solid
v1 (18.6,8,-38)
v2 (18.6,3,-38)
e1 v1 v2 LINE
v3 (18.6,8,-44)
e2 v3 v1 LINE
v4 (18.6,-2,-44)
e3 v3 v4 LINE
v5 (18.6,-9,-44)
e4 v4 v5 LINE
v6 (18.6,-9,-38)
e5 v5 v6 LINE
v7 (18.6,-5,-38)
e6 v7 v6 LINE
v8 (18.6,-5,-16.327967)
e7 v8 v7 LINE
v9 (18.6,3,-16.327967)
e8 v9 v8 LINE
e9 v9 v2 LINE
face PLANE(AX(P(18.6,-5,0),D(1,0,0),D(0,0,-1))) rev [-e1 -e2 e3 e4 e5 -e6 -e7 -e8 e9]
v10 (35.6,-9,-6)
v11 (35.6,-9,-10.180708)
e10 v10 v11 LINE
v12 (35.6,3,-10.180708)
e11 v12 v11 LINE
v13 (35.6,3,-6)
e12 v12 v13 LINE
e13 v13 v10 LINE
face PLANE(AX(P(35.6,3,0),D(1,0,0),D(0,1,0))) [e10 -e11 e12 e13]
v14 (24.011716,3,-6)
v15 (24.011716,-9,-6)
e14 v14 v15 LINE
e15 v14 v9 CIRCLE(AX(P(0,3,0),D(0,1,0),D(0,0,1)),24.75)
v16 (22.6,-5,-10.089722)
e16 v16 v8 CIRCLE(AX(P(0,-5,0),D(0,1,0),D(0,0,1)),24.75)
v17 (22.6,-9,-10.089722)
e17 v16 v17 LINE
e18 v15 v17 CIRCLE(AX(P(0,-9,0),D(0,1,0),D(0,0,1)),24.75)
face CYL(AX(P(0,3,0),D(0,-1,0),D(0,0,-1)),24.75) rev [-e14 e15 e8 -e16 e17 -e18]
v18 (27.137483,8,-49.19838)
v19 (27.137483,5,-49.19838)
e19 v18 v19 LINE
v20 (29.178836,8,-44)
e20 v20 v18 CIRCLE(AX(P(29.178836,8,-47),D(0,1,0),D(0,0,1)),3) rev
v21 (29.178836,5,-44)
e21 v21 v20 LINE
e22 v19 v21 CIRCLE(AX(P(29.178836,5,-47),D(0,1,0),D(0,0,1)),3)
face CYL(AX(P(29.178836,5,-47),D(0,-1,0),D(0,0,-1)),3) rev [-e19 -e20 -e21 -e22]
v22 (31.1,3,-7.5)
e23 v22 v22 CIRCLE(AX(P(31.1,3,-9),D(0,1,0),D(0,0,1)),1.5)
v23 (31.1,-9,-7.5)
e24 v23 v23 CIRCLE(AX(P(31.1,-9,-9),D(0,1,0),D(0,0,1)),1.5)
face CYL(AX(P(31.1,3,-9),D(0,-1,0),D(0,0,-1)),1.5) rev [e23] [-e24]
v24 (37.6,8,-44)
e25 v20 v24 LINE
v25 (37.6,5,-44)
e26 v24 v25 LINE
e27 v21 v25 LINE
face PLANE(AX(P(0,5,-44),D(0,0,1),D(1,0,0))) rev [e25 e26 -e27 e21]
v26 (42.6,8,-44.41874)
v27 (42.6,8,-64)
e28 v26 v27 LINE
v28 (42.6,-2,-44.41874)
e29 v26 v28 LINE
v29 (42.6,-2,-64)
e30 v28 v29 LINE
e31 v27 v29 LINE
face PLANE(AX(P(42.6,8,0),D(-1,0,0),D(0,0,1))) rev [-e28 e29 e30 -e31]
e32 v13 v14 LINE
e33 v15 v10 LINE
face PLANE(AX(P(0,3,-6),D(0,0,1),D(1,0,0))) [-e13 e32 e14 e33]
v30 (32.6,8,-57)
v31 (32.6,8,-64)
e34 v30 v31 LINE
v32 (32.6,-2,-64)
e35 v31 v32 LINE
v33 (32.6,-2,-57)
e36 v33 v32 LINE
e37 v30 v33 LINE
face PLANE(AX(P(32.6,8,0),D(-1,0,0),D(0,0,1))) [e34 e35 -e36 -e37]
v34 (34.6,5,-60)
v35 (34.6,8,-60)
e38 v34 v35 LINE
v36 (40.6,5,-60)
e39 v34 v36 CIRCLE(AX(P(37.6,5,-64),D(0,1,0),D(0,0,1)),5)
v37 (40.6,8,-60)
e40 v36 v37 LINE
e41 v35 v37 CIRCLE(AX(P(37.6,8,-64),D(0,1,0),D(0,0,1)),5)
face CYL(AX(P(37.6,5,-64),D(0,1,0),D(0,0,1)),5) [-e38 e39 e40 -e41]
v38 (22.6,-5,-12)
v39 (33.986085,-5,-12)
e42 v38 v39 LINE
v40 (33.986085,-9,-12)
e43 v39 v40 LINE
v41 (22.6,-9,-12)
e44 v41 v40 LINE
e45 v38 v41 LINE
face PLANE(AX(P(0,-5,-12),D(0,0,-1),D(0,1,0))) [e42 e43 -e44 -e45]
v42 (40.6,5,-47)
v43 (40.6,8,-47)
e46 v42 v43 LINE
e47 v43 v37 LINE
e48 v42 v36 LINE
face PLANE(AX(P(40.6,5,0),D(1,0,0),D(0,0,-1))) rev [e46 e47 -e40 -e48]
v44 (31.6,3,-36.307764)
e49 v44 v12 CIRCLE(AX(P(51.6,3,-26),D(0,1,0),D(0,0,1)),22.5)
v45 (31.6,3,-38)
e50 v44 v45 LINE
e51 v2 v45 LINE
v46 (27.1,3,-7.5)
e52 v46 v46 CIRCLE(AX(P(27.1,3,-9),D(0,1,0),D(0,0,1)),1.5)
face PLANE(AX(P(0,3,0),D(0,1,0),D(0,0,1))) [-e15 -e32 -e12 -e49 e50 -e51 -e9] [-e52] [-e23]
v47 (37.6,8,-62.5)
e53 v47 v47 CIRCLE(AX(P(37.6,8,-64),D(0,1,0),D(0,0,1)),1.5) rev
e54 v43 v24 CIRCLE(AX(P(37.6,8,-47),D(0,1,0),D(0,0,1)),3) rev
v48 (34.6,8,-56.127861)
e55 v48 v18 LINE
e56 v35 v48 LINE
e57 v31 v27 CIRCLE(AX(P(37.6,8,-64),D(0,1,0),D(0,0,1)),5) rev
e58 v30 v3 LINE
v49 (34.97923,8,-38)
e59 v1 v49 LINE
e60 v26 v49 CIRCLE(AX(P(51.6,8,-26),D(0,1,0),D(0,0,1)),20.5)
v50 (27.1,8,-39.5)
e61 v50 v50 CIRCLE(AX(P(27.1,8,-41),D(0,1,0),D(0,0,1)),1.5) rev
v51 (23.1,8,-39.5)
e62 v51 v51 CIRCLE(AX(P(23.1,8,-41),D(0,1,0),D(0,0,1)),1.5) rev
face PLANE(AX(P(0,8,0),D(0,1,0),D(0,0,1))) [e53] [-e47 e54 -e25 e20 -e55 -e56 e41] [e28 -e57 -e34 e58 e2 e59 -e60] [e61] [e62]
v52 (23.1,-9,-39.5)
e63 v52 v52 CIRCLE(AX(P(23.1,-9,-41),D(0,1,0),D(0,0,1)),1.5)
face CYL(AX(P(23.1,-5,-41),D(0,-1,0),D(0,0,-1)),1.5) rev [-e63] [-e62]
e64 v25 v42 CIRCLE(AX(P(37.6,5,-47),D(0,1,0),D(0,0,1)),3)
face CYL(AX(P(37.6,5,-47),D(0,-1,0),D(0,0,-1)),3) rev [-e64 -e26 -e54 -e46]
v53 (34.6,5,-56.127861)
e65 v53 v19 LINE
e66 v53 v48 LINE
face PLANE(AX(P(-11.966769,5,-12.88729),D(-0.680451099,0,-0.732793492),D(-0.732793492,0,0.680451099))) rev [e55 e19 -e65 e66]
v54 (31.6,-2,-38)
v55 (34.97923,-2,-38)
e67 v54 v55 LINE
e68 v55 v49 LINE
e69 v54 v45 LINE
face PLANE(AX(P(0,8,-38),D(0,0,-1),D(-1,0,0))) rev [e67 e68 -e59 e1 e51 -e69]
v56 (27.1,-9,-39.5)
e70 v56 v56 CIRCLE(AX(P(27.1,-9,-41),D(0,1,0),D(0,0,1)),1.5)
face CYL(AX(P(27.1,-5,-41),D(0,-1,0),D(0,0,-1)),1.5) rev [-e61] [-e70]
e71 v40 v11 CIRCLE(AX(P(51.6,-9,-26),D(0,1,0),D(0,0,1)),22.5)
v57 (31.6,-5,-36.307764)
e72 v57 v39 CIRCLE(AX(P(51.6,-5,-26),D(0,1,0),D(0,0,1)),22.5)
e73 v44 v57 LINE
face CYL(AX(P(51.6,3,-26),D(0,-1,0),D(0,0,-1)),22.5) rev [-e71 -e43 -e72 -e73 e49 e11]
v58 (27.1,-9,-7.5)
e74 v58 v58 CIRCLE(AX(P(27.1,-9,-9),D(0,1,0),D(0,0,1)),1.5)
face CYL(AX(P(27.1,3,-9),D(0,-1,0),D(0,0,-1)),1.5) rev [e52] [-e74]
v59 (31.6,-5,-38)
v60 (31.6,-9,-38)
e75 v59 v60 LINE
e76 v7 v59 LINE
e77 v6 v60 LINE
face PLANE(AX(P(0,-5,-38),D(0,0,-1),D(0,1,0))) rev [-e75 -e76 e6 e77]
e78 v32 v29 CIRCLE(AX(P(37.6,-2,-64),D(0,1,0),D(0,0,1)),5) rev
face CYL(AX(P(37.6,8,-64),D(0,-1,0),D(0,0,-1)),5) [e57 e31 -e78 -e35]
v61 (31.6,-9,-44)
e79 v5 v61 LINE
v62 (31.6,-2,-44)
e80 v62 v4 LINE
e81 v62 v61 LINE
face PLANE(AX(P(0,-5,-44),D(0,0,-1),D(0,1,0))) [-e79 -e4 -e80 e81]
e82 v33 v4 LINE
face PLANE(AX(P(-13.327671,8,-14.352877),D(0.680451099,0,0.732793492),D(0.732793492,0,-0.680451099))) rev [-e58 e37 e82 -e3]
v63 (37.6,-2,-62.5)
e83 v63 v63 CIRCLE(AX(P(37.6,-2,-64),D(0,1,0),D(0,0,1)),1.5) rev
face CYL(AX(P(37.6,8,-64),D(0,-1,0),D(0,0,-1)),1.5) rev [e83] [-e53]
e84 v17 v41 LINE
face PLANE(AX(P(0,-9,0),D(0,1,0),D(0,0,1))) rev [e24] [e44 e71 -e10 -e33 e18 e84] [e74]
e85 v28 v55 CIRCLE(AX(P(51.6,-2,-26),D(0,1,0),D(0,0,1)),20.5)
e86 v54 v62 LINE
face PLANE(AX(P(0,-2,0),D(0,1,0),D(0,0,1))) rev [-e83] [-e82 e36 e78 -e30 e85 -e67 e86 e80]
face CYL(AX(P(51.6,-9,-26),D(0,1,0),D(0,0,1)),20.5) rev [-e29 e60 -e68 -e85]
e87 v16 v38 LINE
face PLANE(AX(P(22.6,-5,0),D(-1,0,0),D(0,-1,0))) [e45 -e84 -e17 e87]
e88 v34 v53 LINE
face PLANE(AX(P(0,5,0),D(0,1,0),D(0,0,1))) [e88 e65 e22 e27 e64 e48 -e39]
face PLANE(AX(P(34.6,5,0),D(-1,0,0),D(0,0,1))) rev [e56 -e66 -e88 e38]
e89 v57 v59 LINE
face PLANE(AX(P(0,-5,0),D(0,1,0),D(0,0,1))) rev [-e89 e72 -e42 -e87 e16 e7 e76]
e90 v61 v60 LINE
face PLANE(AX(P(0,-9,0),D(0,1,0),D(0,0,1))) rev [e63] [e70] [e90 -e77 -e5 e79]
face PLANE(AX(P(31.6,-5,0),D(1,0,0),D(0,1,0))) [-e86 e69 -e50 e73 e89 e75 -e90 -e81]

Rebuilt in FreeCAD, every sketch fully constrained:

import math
import FreeCAD as App
import Part
import Sketcher
Q = App.Units.Quantity


def edges_at(feature, points):
    """Names of the edges that pass closest to the given points."""
    edges = feature.Shape.Edges
    near = lambda p: min(range(len(edges)), key=lambda i: edges[i].distToShape(Part.Vertex(*p))[0])
    return sorted({f"Edge{near(p) + 1}" for p in points})


def add_polygon(sketch, points):
    """Adds a closed chain of lines whose ends are joined by coincident constraints."""
    first, n = sketch.GeometryCount, len(points)
    for a, b in zip(points, points[1:] + points[:1]):
        sketch.addGeometry(Part.LineSegment(App.Vector(*a, 0), App.Vector(*b, 0)), False)
    for i in range(n):
        sketch.addConstraint(Sketcher.Constraint("Coincident", first + i, 2, first + (i + 1) % n, 1))

doc = App.newDocument("Part")
params = doc.addObject("Spreadsheet::Sheet", "Params")
for row, (alias, value) in enumerate([
    ("sketch1_diameter", "3 mm"),
    ("sketch1_width", "13 mm"),
    ("sketch1_height", "6 mm"),
    ("pad1_length", "4 mm"),
    ("sketch2_diameter", "3 mm"),
    ("sketch2_radius", "22.5 mm"),
    ("sketch2_radius2", "24.75 mm"),
    ("pad2_length", "4 mm"),
    ("sketch3_diameter", "3 mm"),
    ("sketch3_radius", "22.5 mm"),
    ("sketch3_width", "13 mm"),
    ("sketch3_radius2", "24.75 mm"),
    ("pad3_length", "8 mm"),
    ("sketch4_diameter", "3 mm"),
    ("sketch4_radius", "5 mm"),
    ("sketch4_width", "19 mm"),
    ("sketch4_height", "7 mm"),
    ("sketch4_height2", "6 mm"),
    ("pad4_length", "5 mm"),
    ("sketch5_diameter", "3 mm"),
    ("sketch5_radius", "5 mm"),
    ("sketch5_width", "13 mm"),
    ("sketch5_width2", "6 mm"),
    ("sketch5_height", "7 mm"),
    ("pad5_length", "5 mm"),
    ("sketch6_radius", "5 mm"),
    ("sketch6_height", "16 mm"),
    ("pocket1_length", "3 mm"),
    ("fillet_radius", "3 mm"),
    ("sketch7_diameter", "41 mm"),
], start=1):
    params.set(f"A{row}", alias)
    params.set(f"B{row}", "=" + value)
    params.setAlias(f"B{row}", alias)

body = doc.addObject("PartDesign::Body", "Body")

sketch1 = body.newObject("Sketcher::SketchObject", "Sketch")
sketch1.AttachmentSupport = (doc.getObject("XZ_Plane"), [""])
sketch1.MapMode = "FlatFace"
sketch1.AttachmentOffset = App.Placement(App.Vector(0, 0, 9), App.Rotation())
add_polygon(sketch1, [(18.6, -44), (18.6, -38), (31.6, -38), (31.6, -44)])
sketch1.addGeometry(Part.Circle(App.Vector(23.1, -41, 0), App.Vector(0, 0, 1), 1.5), False)
sketch1.addGeometry(Part.Circle(App.Vector(27.1, -41, 0), App.Vector(0, 0, 1), 1.5), False)
sketch1.addConstraint([
    Sketcher.Constraint("Vertical", 0),
    Sketcher.Constraint("Horizontal", 1),
    Sketcher.Constraint("Vertical", 2),
    Sketcher.Constraint("Horizontal", 3),
    Sketcher.Constraint("Equal", 4, 5),
    Sketcher.Constraint("Horizontal", 4, 3, 5, 3),
    Sketcher.Constraint("Diameter", 4, Q("3 mm")),
    Sketcher.Constraint("DistanceX", 1, 1, 1, 2, Q("13 mm")),
    Sketcher.Constraint("DistanceY", 0, 1, 0, 2, Q("6 mm")),
    Sketcher.Constraint("DistanceY", 4, 3, -1, 1, Q("41 mm")),
    Sketcher.Constraint("DistanceY", 0, 2, -1, 1, Q("38 mm")),
    Sketcher.Constraint("DistanceX", 4, 3, 5, 3, Q("4 mm")),
    Sketcher.Constraint("DistanceX", -1, 1, 4, 3, Q("23.1 mm")),
    Sketcher.Constraint("DistanceX", -1, 1, 0, 2, Q("18.6 mm")),
])
sketch1.setExpression("Constraints[10]", "Params.sketch1_diameter")
sketch1.setExpression("Constraints[11]", "Params.sketch1_width")
sketch1.setExpression("Constraints[12]", "Params.sketch1_height")
pad1 = body.newObject("PartDesign::Pad", "Pad")
pad1.Profile = sketch1
pad1.setExpression("Length", "Params.pad1_length")
pad1.Reversed = True
body2 = doc.addObject("PartDesign::Body", "Body001")

sketch2 = body2.newObject("Sketcher::SketchObject", "Sketch001")
sketch2.AttachmentSupport = (doc.getObject("XZ_Plane001"), [""])
sketch2.MapMode = "FlatFace"
sketch2.AttachmentOffset = App.Placement(App.Vector(0, 0, 9), App.Rotation())
sketch2.addGeometry([
    Part.ArcOfCircle(Part.Circle(App.Vector(0, 0, 0), App.Vector(0, 0, 1), 24.8), math.radians(-24.06), math.radians(-14.03)),
    Part.LineSegment(App.Vector(24, -6, 0), App.Vector(35.6, -6, 0)),
    Part.LineSegment(App.Vector(35.6, -6, 0), App.Vector(35.6, -10.2, 0)),
    Part.ArcOfCircle(Part.Circle(App.Vector(51.6, -26, 0), App.Vector(0, 0, 1), 22.5), math.radians(135.33), math.radians(141.52)),
    Part.LineSegment(App.Vector(34, -12, 0), App.Vector(22.6, -12, 0)),
    Part.LineSegment(App.Vector(22.6, -12, 0), App.Vector(22.6, -10.1, 0)),
    Part.Circle(App.Vector(27.1, -9, 0), App.Vector(0, 0, 1), 1.5),
    Part.Circle(App.Vector(31.1, -9, 0), App.Vector(0, 0, 1), 1.5),
], False)
sketch2.addConstraint([
    Sketcher.Constraint("Coincident", 0, 2, 1, 1),
    Sketcher.Constraint("Coincident", 1, 2, 2, 1),
    Sketcher.Constraint("Coincident", 2, 2, 3, 1),
    Sketcher.Constraint("Coincident", 3, 2, 4, 1),
    Sketcher.Constraint("Coincident", 4, 2, 5, 1),
    Sketcher.Constraint("Coincident", 5, 2, 0, 1),
    Sketcher.Constraint("Horizontal", 1),
    Sketcher.Constraint("Vertical", 2),
    Sketcher.Constraint("Horizontal", 4),
    Sketcher.Constraint("Vertical", 5),
    Sketcher.Constraint("Coincident", 0, 3, -1, 1),
    Sketcher.Constraint("Equal", 6, 7),
    Sketcher.Constraint("Horizontal", 6, 3, 7, 3),
    Sketcher.Constraint("Diameter", 6, Q("3 mm")),
    Sketcher.Constraint("Radius", 3, Q("22.5 mm")),
    Sketcher.Constraint("Radius", 0, Q("24.75 mm")),
    Sketcher.Constraint("DistanceY", 3, 3, -1, 1, Q("26 mm")),
    Sketcher.Constraint("DistanceY", 6, 3, -1, 1, Q("9 mm")),
    Sketcher.Constraint("DistanceY", 0, 2, -1, 1, Q("6 mm")),
    Sketcher.Constraint("DistanceY", 3, 2, -1, 1, Q("12 mm")),
    Sketcher.Constraint("DistanceX", 6, 3, 7, 3, Q("4 mm")),
    Sketcher.Constraint("DistanceX", 1, 2, 3, 3, Q("16 mm")),
    Sketcher.Constraint("DistanceX", 4, 2, 2, 2, Q("13 mm")),
    Sketcher.Constraint("DistanceX", -1, 1, 3, 3, Q("51.6 mm")),
    Sketcher.Constraint("DistanceX", -1, 1, 6, 3, Q("27.1 mm")),
])
sketch2.setExpression("Constraints[13]", "Params.sketch2_diameter")
sketch2.setExpression("Constraints[14]", "Params.sketch2_radius")
sketch2.setExpression("Constraints[15]", "Params.sketch2_radius2")
pad2 = body2.newObject("PartDesign::Pad", "Pad001")
pad2.Profile = sketch2
pad2.setExpression("Length", "Params.pad2_length")
pad2.Reversed = True
body.AllowCompound = True
doc.recompute()

boolean = body.newObject("PartDesign::Boolean", "Boolean")
boolean.Type = "Fuse"
boolean.addObjects([body2])

sketch3 = body.newObject("Sketcher::SketchObject", "Sketch002")
sketch3.AttachmentSupport = (doc.getObject("XZ_Plane"), [""])
sketch3.MapMode = "FlatFace"
sketch3.AttachmentOffset = App.Placement(App.Vector(0, 0, 5), App.Rotation())
sketch3.addGeometry([
    Part.ArcOfCircle(Part.Circle(App.Vector(0, 0, 0), App.Vector(0, 0, 1), 24.8), math.radians(-24.06), math.radians(-14.03)),
    Part.LineSegment(App.Vector(24, -6, 0), App.Vector(35.6, -6, 0)),
    Part.LineSegment(App.Vector(35.6, -6, 0), App.Vector(35.6, -10.2, 0)),
    Part.ArcOfCircle(Part.Circle(App.Vector(51.6, -26, 0), App.Vector(0, 0, 1), 22.5), math.radians(135.33), math.radians(141.52)),
    Part.ArcOfCircle(Part.Circle(App.Vector(51.6, -26, 0), App.Vector(0, 0, 1), 22.5), math.radians(141.52), math.radians(152.73)),
    Part.ArcOfCircle(Part.Circle(App.Vector(51.6, -26, 0), App.Vector(0, 0, 1), 22.5), math.radians(153), math.radians(207)),
    Part.LineSegment(App.Vector(31.6, -36.3, 0), App.Vector(31.6, -44, 0)),
    Part.LineSegment(App.Vector(31.6, -44, 0), App.Vector(18.6, -44, 0)),
    Part.LineSegment(App.Vector(18.6, -44, 0), App.Vector(18.6, -16.3, 0)),
    Part.ArcOfCircle(Part.Circle(App.Vector(0, 0, 0), App.Vector(0, 0, 1), 24.7), math.radians(-41.28), math.radians(-29)),
    Part.ArcOfCircle(Part.Circle(App.Vector(0, 0, 0), App.Vector(0, 0, 1), 24.8), math.radians(-29), math.radians(-24.06)),
    Part.Circle(App.Vector(27.1, -9, 0), App.Vector(0, 0, 1), 1.5),
    Part.Circle(App.Vector(31.1, -9, 0), App.Vector(0, 0, 1), 1.5),
    Part.Circle(App.Vector(23.1, -41, 0), App.Vector(0, 0, 1), 1.5),
    Part.Circle(App.Vector(27.1, -41, 0), App.Vector(0, 0, 1), 1.5),
], False)
sketch3.addConstraint([
    Sketcher.Constraint("Coincident", 0, 2, 1, 1),
    Sketcher.Constraint("Coincident", 1, 2, 2, 1),
    Sketcher.Constraint("Coincident", 2, 2, 3, 1),
    Sketcher.Constraint("Tangent", 3, 2, 4, 1),
    Sketcher.Constraint("Tangent", 4, 2, 5, 1),
    Sketcher.Constraint("Coincident", 5, 2, 6, 1),
    Sketcher.Constraint("Coincident", 6, 2, 7, 1),
    Sketcher.Constraint("Coincident", 7, 2, 8, 1),
    Sketcher.Constraint("Coincident", 8, 2, 9, 1),
    Sketcher.Constraint("Tangent", 9, 2, 10, 1),
    Sketcher.Constraint("Tangent", 10, 2, 0, 1),
    Sketcher.Constraint("Horizontal", 1),
    Sketcher.Constraint("Vertical", 2),
    Sketcher.Constraint("Vertical", 6),
    Sketcher.Constraint("Horizontal", 7),
    Sketcher.Constraint("Vertical", 8),
    Sketcher.Constraint("Coincident", 0, 3, -1, 1),
    Sketcher.Constraint("Coincident", 9, 3, -1, 1),
    Sketcher.Constraint("Coincident", 5, 3, 3, 3),
    Sketcher.Constraint("Equal", 11, 12),
    Sketcher.Constraint("Equal", 12, 13),
    Sketcher.Constraint("Equal", 13, 14),
    Sketcher.Constraint("Horizontal", 11, 3, 12, 3),
    Sketcher.Constraint("Horizontal", 13, 3, 14, 3),
    Sketcher.Constraint("Horizontal", 3, 2, 9, 2),
    Sketcher.Constraint("Vertical", 11, 3, 14, 3),
    Sketcher.Constraint("Vertical", 4, 2, 5, 2),
    Sketcher.Constraint("Diameter", 11, Q("3 mm")),
    Sketcher.Constraint("Radius", 3, Q("22.5 mm")),
    Sketcher.Constraint("DistanceX", 7, 2, 7, 1, Q("13 mm")),
    Sketcher.Constraint("Radius", 0, Q("24.75 mm")),
    Sketcher.Constraint("DistanceY", 3, 3, -1, 1, Q("26 mm")),
    Sketcher.Constraint("DistanceY", 11, 3, -1, 1, Q("9 mm")),
    Sketcher.Constraint("DistanceY", 13, 3, -1, 1, Q("41 mm")),
    Sketcher.Constraint("DistanceY", 0, 2, -1, 1, Q("6 mm")),
    Sketcher.Constraint("DistanceY", 3, 2, -1, 1, Q("12 mm")),
    Sketcher.Constraint("DistanceY", 6, 2, -1, 1, Q("44 mm")),
    Sketcher.Constraint("DistanceX", 11, 3, 12, 3, Q("4 mm")),
    Sketcher.Constraint("DistanceX", 13, 3, 11, 3, Q("4 mm")),
    Sketcher.Constraint("DistanceX", 1, 2, 5, 3, Q("16 mm")),
    Sketcher.Constraint("DistanceX", 4, 2, 2, 2, Q("4 mm")),
    Sketcher.Constraint("DistanceX", 8, 2, 10, 2, Q("4 mm")),
    Sketcher.Constraint("DistanceX", -1, 1, 3, 3, Q("51.6 mm")),
    Sketcher.Constraint("DistanceX", -1, 1, 11, 3, Q("27.1 mm")),
])
sketch3.setExpression("Constraints[27]", "Params.sketch3_diameter")
sketch3.setExpression("Constraints[28]", "Params.sketch3_radius")
sketch3.setExpression("Constraints[29]", "Params.sketch3_width")
sketch3.setExpression("Constraints[30]", "Params.sketch3_radius2")
pad3 = body.newObject("PartDesign::Pad", "Pad002")
pad3.Profile = sketch3
pad3.setExpression("Length", "Params.pad3_length")
pad3.Reversed = True

sketch4 = body.newObject("Sketcher::SketchObject", "Sketch003")
sketch4.AttachmentSupport = (doc.getObject("XZ_Plane"), [""])
sketch4.MapMode = "FlatFace"
sketch4.AttachmentOffset = App.Placement(App.Vector(0, 0, -3), App.Rotation())
sketch4.addGeometry([
    Part.ArcOfCircle(Part.Circle(App.Vector(37.6, -64, 0), App.Vector(0, 0, 1), 5), math.radians(180), math.radians(360)),
    Part.LineSegment(App.Vector(32.6, -64, 0), App.Vector(32.6, -57, 0)),
    Part.LineSegment(App.Vector(32.6, -57, 0), App.Vector(24.7, -49.6, 0)),
    Part.LineSegment(App.Vector(24.7, -49.6, 0), App.Vector(18.6, -44, 0)),
    Part.LineSegment(App.Vector(18.6, -44, 0), App.Vector(18.6, -38, 0)),
    Part.LineSegment(App.Vector(18.6, -38, 0), App.Vector(37.6, -38, 0)),
    Part.ArcOfCircle(Part.Circle(App.Vector(37.6, -43, 0), App.Vector(0, 0, 1), 5), math.radians(0), math.radians(90)),
    Part.LineSegment(App.Vector(42.6, -43, 0), App.Vector(42.6, -64, 0)),
    Part.Circle(App.Vector(27.1, -41, 0), App.Vector(0, 0, 1), 1.5),
    Part.Circle(App.Vector(23.1, -41, 0), App.Vector(0, 0, 1), 1.5),
    Part.Circle(App.Vector(37.6, -64, 0), App.Vector(0, 0, 1), 1.5),
], False)
sketch4.addConstraint([
    Sketcher.Constraint("Tangent", 0, 1, 1, 1),
    Sketcher.Constraint("Coincident", 1, 2, 2, 1),
    Sketcher.Constraint("Coincident", 2, 2, 3, 1),
    Sketcher.Constraint("Coincident", 3, 2, 4, 1),
    Sketcher.Constraint("Coincident", 4, 2, 5, 1),
    Sketcher.Constraint("Tangent", 5, 2, 6, 2),
    Sketcher.Constraint("Tangent", 6, 1, 7, 1),
    Sketcher.Constraint("Tangent", 7, 2, 0, 2),
    Sketcher.Constraint("Vertical", 1),
    Sketcher.Constraint("Vertical", 4),
    Sketcher.Constraint("Horizontal", 5),
    Sketcher.Constraint("Vertical", 7),
    Sketcher.Constraint("Coincident", 10, 3, 0, 3),
    Sketcher.Constraint("Equal", 0, 6),
    Sketcher.Constraint("Equal", 8, 9),
    Sketcher.Constraint("Equal", 9, 10),
    Sketcher.Constraint("Parallel", 2, 3),
    Sketcher.Constraint("Horizontal", 8, 3, 9, 3),
    Sketcher.Constraint("Diameter", 8, Q("3 mm")),
    Sketcher.Constraint("Radius", 0, Q("5 mm")),
    Sketcher.Constraint("DistanceX", 5, 1, 5, 2, Q("19 mm")),
    Sketcher.Constraint("DistanceY", 1, 1, 1, 2, Q("7 mm")),
    Sketcher.Constraint("DistanceY", 4, 1, 4, 2, Q("6 mm")),
    Sketcher.Constraint("DistanceY", 7, 2, 7, 1, Q("21 mm")),
    Sketcher.Constraint("DistanceY", 0, 3, -1, 1, Q("64 mm")),
    Sketcher.Constraint("DistanceY", 8, 3, -1, 1, Q("41 mm")),
    Sketcher.Constraint("DistanceX", 9, 3, 8, 3, Q("4 mm")),
    Sketcher.Constraint("DistanceX", -1, 1, 0, 3, Q("37.6 mm")),
    Sketcher.Constraint("DistanceX", -1, 1, 8, 3, Q("27.1 mm")),
    Sketcher.Constraint("DistanceX", -1, 1, 2, 2, Q("24.675472 mm")),
])
sketch4.setExpression("Constraints[18]", "Params.sketch4_diameter")
sketch4.setExpression("Constraints[19]", "Params.sketch4_radius")
sketch4.setExpression("Constraints[20]", "Params.sketch4_width")
sketch4.setExpression("Constraints[21]", "Params.sketch4_height")
sketch4.setExpression("Constraints[22]", "Params.sketch4_height2")
pad4 = body.newObject("PartDesign::Pad", "Pad003")
pad4.Profile = sketch4
pad4.setExpression("Length", "Params.pad4_length")
pad4.Reversed = True

sketch5 = body.newObject("Sketcher::SketchObject", "Sketch004")
sketch5.AttachmentSupport = (doc.getObject("XZ_Plane"), [""])
sketch5.MapMode = "FlatFace"
sketch5.AttachmentOffset = App.Placement(App.Vector(0, 0, -3), App.Rotation())
sketch5.addGeometry([
    Part.ArcOfCircle(Part.Circle(App.Vector(37.6, -64, 0), App.Vector(0, 0, 1), 5), math.radians(180), math.radians(360)),
    Part.LineSegment(App.Vector(32.6, -64, 0), App.Vector(32.6, -57, 0)),
    Part.LineSegment(App.Vector(32.6, -57, 0), App.Vector(24.7, -49.6, 0)),
    Part.LineSegment(App.Vector(24.7, -49.6, 0), App.Vector(18.6, -44, 0)),
    Part.LineSegment(App.Vector(18.6, -44, 0), App.Vector(31.6, -44, 0)),
    Part.LineSegment(App.Vector(31.6, -44, 0), App.Vector(31.6, -38, 0)),
    Part.LineSegment(App.Vector(31.6, -38, 0), App.Vector(37.6, -38, 0)),
    Part.ArcOfCircle(Part.Circle(App.Vector(37.6, -43, 0), App.Vector(0, 0, 1), 5), math.radians(0), math.radians(90)),
    Part.LineSegment(App.Vector(42.6, -43, 0), App.Vector(42.6, -64, 0)),
    Part.Circle(App.Vector(37.6, -64, 0), App.Vector(0, 0, 1), 1.5),
], False)
sketch5.addConstraint([
    Sketcher.Constraint("Tangent", 0, 1, 1, 1),
    Sketcher.Constraint("Coincident", 1, 2, 2, 1),
    Sketcher.Constraint("Coincident", 2, 2, 3, 1),
    Sketcher.Constraint("Coincident", 3, 2, 4, 1),
    Sketcher.Constraint("Coincident", 4, 2, 5, 1),
    Sketcher.Constraint("Coincident", 5, 2, 6, 1),
    Sketcher.Constraint("Tangent", 6, 2, 7, 2),
    Sketcher.Constraint("Tangent", 7, 1, 8, 1),
    Sketcher.Constraint("Tangent", 8, 2, 0, 2),
    Sketcher.Constraint("Vertical", 1),
    Sketcher.Constraint("Horizontal", 4),
    Sketcher.Constraint("Vertical", 5),
    Sketcher.Constraint("Horizontal", 6),
    Sketcher.Constraint("Vertical", 8),
    Sketcher.Constraint("Coincident", 9, 3, 0, 3),
    Sketcher.Constraint("Equal", 0, 7),
    Sketcher.Constraint("Parallel", 2, 3),
    Sketcher.Constraint("Equal", 6, 5),
    Sketcher.Constraint("Diameter", 9, Q("3 mm")),
    Sketcher.Constraint("Radius", 0, Q("5 mm")),
    Sketcher.Constraint("DistanceX", 4, 1, 4, 2, Q("13 mm")),
    Sketcher.Constraint("DistanceX", 6, 1, 6, 2, Q("6 mm")),
    Sketcher.Constraint("DistanceY", 1, 1, 1, 2, Q("7 mm")),
    Sketcher.Constraint("DistanceY", 8, 2, 8, 1, Q("21 mm")),
    Sketcher.Constraint("DistanceY", 0, 3, -1, 1, Q("64 mm")),
    Sketcher.Constraint("DistanceX", -1, 1, 0, 3, Q("37.6 mm")),
    Sketcher.Constraint("DistanceX", -1, 1, 2, 2, Q("24.675472 mm")),
])
sketch5.setExpression("Constraints[18]", "Params.sketch5_diameter")
sketch5.setExpression("Constraints[19]", "Params.sketch5_radius")
sketch5.setExpression("Constraints[20]", "Params.sketch5_width")
sketch5.setExpression("Constraints[21]", "Params.sketch5_width2")
sketch5.setExpression("Constraints[22]", "Params.sketch5_height")
pad5 = body.newObject("PartDesign::Pad", "Pad004")
pad5.Profile = sketch5
pad5.setExpression("Length", "Params.pad5_length")

sketch6 = body.newObject("Sketcher::SketchObject", "Sketch005")
sketch6.AttachmentSupport = (doc.getObject("XZ_Plane"), [""])
sketch6.MapMode = "FlatFace"
sketch6.AttachmentOffset = App.Placement(App.Vector(0, 0, -8), App.Rotation())
sketch6.addGeometry([
    Part.LineSegment(App.Vector(34.6, -60, 0), App.Vector(34.6, -56.1, 0)),
    Part.LineSegment(App.Vector(34.6, -56.1, 0), App.Vector(21.5, -44, 0)),
    Part.LineSegment(App.Vector(21.5, -44, 0), App.Vector(40.6, -44, 0)),
    Part.LineSegment(App.Vector(40.6, -44, 0), App.Vector(40.6, -60, 0)),
    Part.ArcOfCircle(Part.Circle(App.Vector(37.6, -64, 0), App.Vector(0, 0, 1), 5), math.radians(53), math.radians(127)),
], False)
sketch6.addConstraint([
    Sketcher.Constraint("Coincident", 0, 2, 1, 1),
    Sketcher.Constraint("Coincident", 1, 2, 2, 1),
    Sketcher.Constraint("Coincident", 2, 2, 3, 1),
    Sketcher.Constraint("Coincident", 3, 2, 4, 1),
    Sketcher.Constraint("Coincident", 4, 2, 0, 1),
    Sketcher.Constraint("Vertical", 0),
    Sketcher.Constraint("Horizontal", 2),
    Sketcher.Constraint("Vertical", 3),
    Sketcher.Constraint("Horizontal", 3, 2, 4, 2),
    Sketcher.Constraint("Radius", 4, Q("5 mm")),
    Sketcher.Constraint("DistanceY", 3, 2, 3, 1, Q("16 mm")),
    Sketcher.Constraint("DistanceY", 4, 3, -1, 1, Q("64 mm")),
    Sketcher.Constraint("DistanceY", 1, 2, -1, 1, Q("44 mm")),
    Sketcher.Constraint("DistanceX", -1, 1, 4, 3, Q("37.6 mm")),
    Sketcher.Constraint("DistanceY", 0, 1, 0, 2, Q("3.872139 mm")),
    Sketcher.Constraint("DistanceX", 2, 1, 2, 2, Q("19.060773 mm")),
])
sketch6.setExpression("Constraints[9]", "Params.sketch6_radius")
sketch6.setExpression("Constraints[10]", "Params.sketch6_height")
pocket1 = body.newObject("PartDesign::Pocket", "Pocket")
pocket1.Profile = sketch6
pocket1.setExpression("Length", "Params.pocket1_length")
pocket1.Reversed = True
doc.recompute()

fillet = body.newObject("PartDesign::Fillet", "Fillet")
fillet.Base = (pocket1, edges_at(pocket1, [(40.6, 6.5, -44), (21.539, 6.5, -44)]))
fillet.setExpression("Radius", "Params.fillet_radius")

sketch7 = body.newObject("Sketcher::SketchObject", "Sketch006")
sketch7.AttachmentSupport = (doc.getObject("XZ_Plane"), [""])
sketch7.MapMode = "FlatFace"
sketch7.AttachmentOffset = App.Placement(App.Vector(0, 0, -3), App.Rotation())
sketch7.addGeometry(Part.Circle(App.Vector(52, -26, 0), App.Vector(0, 0, 1), 20), False)
sketch7.addConstraint([
    Sketcher.Constraint("Diameter", 0, Q("41 mm")),
    Sketcher.Constraint("DistanceY", 0, 3, -1, 1, Q("26 mm")),
    Sketcher.Constraint("DistanceX", -1, 1, 0, 3, Q("51.6 mm")),
])
sketch7.setExpression("Constraints[0]", "Params.sketch7_diameter")
pocket2 = body.newObject("PartDesign::Pocket", "Pocket001")
pocket2.Profile = sketch7
pocket2.Type = "ThroughAll"
pocket2.Midplane = True

doc.recompute()
